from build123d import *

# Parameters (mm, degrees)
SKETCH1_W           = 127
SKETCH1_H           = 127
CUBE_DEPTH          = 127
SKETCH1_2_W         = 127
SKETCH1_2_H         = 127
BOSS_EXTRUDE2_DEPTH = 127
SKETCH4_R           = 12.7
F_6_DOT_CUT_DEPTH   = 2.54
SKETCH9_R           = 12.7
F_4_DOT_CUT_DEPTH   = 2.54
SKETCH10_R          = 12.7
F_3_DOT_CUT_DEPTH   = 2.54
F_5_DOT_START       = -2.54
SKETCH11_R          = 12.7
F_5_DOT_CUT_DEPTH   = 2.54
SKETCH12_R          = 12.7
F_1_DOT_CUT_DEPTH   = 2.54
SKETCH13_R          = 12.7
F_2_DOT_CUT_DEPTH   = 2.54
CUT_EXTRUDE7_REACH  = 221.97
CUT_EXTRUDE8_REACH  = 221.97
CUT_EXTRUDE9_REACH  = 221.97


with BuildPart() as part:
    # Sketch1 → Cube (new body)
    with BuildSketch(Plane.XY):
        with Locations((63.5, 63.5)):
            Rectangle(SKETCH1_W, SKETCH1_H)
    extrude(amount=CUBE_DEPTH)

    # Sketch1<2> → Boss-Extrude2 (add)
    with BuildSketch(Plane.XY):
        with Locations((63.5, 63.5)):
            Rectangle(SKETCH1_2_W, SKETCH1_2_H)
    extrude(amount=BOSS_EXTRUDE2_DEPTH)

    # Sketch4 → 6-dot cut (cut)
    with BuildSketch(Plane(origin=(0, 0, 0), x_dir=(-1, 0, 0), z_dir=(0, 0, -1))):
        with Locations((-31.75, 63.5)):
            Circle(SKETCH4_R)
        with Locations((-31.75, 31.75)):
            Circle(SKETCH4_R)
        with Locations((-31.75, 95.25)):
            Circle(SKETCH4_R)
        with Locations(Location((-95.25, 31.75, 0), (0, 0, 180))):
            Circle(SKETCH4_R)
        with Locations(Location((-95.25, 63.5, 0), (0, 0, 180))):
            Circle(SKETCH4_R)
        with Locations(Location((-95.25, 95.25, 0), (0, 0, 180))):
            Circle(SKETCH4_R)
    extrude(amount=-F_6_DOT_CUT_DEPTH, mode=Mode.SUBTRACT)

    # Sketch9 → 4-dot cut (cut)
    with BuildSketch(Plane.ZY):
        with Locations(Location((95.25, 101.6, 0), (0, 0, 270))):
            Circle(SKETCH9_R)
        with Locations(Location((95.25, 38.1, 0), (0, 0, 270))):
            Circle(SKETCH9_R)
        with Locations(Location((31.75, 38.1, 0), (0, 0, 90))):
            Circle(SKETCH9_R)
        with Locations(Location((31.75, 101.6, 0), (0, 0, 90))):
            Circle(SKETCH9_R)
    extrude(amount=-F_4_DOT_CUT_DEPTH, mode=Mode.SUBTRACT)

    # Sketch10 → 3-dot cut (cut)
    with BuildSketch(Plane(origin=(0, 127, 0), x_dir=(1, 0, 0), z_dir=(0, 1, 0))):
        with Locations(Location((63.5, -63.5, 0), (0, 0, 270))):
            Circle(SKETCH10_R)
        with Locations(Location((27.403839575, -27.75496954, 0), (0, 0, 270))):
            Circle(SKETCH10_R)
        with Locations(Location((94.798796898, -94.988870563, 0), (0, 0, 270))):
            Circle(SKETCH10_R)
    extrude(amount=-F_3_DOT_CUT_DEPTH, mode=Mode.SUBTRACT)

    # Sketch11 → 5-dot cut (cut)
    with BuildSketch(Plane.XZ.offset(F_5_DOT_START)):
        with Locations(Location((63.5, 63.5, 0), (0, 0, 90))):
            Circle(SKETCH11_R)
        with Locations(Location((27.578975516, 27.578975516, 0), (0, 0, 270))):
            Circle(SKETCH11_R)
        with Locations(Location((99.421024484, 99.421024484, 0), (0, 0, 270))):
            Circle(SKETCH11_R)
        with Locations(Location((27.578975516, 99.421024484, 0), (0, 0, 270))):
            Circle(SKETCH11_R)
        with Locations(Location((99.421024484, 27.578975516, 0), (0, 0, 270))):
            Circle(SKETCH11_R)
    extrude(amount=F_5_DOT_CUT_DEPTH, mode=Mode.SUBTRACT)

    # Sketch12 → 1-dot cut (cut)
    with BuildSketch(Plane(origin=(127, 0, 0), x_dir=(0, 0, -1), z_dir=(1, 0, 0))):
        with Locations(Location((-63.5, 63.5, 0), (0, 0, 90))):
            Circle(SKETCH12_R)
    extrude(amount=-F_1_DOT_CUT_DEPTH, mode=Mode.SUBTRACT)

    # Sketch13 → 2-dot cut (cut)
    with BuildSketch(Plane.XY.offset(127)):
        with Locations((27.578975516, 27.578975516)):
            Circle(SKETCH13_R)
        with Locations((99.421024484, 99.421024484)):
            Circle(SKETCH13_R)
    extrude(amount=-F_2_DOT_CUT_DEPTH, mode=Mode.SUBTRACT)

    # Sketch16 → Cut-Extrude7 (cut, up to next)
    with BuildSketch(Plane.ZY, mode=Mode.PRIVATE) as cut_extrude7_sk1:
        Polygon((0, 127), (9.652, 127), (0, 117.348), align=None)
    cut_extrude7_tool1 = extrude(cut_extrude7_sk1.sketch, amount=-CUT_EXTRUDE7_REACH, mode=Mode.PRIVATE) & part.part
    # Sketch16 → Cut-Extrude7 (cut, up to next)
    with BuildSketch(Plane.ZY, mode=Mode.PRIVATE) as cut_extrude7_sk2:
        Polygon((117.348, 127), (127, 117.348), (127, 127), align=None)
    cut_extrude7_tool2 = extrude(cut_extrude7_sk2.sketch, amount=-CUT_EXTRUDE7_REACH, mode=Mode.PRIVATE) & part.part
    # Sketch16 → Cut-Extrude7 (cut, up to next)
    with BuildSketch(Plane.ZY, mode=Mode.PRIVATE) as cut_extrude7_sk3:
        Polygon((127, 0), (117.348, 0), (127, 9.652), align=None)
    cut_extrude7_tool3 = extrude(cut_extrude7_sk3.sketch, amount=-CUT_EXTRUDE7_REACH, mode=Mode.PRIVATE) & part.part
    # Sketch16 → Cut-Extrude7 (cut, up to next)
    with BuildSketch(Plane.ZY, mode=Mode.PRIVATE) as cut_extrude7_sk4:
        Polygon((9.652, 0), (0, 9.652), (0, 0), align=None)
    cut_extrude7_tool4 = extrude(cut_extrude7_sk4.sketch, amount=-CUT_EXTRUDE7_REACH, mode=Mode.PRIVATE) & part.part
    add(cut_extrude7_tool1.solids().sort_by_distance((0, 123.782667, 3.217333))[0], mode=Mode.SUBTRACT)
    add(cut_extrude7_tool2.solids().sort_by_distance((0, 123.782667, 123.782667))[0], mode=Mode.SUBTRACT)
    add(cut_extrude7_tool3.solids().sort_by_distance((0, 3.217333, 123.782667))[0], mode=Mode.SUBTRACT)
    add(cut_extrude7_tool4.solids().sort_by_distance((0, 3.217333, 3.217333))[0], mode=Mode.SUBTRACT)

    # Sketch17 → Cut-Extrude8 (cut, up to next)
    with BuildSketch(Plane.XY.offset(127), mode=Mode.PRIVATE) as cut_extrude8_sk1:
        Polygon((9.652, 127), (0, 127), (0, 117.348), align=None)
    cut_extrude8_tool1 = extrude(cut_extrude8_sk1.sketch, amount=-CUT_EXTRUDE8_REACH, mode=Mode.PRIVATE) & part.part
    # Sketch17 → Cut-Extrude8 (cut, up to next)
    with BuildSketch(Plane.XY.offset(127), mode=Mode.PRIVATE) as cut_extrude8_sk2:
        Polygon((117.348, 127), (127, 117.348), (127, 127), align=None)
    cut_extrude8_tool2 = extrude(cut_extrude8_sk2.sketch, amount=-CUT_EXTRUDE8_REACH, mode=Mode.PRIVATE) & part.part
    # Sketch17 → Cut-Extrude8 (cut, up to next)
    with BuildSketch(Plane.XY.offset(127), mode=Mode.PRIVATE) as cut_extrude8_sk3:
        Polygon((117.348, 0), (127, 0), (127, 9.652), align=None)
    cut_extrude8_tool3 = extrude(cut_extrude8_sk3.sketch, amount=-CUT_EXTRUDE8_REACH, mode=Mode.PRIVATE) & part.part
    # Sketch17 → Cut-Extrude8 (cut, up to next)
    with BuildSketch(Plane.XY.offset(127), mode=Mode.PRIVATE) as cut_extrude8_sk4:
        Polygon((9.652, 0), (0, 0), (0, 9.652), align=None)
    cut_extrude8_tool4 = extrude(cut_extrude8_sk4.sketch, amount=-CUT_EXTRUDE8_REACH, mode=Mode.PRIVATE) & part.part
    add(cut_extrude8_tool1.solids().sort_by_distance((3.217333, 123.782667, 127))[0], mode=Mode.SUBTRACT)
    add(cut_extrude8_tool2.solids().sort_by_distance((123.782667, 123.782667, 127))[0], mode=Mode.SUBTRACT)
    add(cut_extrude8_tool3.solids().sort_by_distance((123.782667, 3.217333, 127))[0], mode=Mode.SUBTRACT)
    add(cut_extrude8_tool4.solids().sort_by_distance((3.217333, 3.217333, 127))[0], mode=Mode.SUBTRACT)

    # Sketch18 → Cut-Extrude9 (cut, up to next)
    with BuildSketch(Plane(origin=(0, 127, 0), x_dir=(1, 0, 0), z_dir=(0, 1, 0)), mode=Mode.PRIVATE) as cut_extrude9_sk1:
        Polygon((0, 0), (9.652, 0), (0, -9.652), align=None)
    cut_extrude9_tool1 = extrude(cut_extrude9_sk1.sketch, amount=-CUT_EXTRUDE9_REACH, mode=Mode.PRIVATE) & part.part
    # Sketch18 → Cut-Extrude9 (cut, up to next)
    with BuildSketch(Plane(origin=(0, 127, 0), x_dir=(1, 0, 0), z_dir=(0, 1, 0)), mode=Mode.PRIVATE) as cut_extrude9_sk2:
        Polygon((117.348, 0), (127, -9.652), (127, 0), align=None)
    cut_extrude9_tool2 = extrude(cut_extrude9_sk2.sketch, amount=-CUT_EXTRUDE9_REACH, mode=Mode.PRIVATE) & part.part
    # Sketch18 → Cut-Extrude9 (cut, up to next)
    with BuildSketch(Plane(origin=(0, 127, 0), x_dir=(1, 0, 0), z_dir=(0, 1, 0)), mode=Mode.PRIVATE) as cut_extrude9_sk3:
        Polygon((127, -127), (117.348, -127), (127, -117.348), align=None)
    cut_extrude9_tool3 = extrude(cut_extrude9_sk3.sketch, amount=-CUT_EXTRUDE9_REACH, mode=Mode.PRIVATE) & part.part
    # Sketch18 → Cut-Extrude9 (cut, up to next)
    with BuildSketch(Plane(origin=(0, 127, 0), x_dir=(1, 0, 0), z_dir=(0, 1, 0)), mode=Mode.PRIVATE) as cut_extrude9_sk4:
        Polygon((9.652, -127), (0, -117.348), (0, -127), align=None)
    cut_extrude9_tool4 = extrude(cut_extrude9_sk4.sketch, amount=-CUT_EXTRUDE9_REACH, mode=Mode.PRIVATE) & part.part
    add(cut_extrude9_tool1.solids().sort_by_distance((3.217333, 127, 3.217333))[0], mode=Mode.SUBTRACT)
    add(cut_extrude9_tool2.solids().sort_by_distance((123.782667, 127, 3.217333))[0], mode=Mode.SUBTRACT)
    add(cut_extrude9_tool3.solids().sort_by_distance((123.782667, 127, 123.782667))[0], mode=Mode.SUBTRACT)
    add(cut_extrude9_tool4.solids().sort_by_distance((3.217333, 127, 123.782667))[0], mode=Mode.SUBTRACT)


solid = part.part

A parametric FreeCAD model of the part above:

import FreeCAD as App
import Part
import Sketcher
Q = App.Units.Quantity

doc = App.newDocument("Part")
params = doc.addObject("Spreadsheet::Sheet", "Params")
for row, (alias, value) in enumerate([
    ("sketch1_width", "5 in"),
    ("pad1_length", "5 in"),
    ("sketch2_width", "5 in"),
    ("pad2_length", "5 in"),
    ("sketch3_diameter", "1 in"),
    ("pocket1_length", "0.1 in"),
    ("sketch4_diameter", "1 in"),
    ("pocket2_length", "0.1 in"),
    ("sketch5_diameter", "1 in"),
    ("pocket3_length", "0.1 in"),
    ("sketch6_diameter", "1 in"),
    ("pocket4_length", "0.1 in"),
    ("sketch7_diameter", "1 in"),
    ("pocket5_length", "0.1 in"),
    ("sketch8_diameter", "1 in"),
    ("pocket6_length", "0.1 in"),
    ("sketch9_width", "0.38 in"),
    ("sketch10_width", "0.38 in"),
    ("sketch11_width", "0.38 in"),
    ("sketch12_width", "0.38 in"),
    ("sketch13_width", "0.38 in"),
    ("pocket11_length", "5 in"),
    ("sketch14_width", "0.38 in"),
    ("pocket12_length", "5 in"),
    ("sketch15_width", "0.38 in"),
    ("pocket13_length", "5 in"),
    ("sketch16_width", "0.38 in"),
    ("pocket14_length", "5 in"),
    ("sketch17_width", "0.38 in"),
    ("pocket15_length", "4.81 in"),
    ("sketch18_width", "0.38 in"),
    ("pocket16_length", "4.81 in"),
    ("sketch19_width", "0.38 in"),
    ("pocket17_length", "4.81 in"),
    ("sketch20_width", "0.38 in"),
    ("pocket18_length", "4.81 in"),
], start=1):
    params.set(f"A{row}", alias)
    params.set(f"B{row}", "=" + value)
    params.setAlias(f"B{row}", alias)

body = doc.addObject("PartDesign::Body", "Body")

sketch1 = body.newObject("Sketcher::SketchObject", "Sketch")
sketch1.AttachmentSupport = (doc.getObject("XY_Plane"), [""])
sketch1.MapMode = "FlatFace"
sketch1.addGeometry([
    Part.LineSegment(App.Vector(0, 127, 0), App.Vector(0, 0, 0)),
    Part.LineSegment(App.Vector(0, 0, 0), App.Vector(127, 0, 0)),
    Part.LineSegment(App.Vector(127, 0, 0), App.Vector(127, 127, 0)),
    Part.LineSegment(App.Vector(127, 127, 0), App.Vector(0, 127, 0)),
], False)
sketch1.addConstraint([
    Sketcher.Constraint("Coincident", 0, 2, 1, 1),
    Sketcher.Constraint("Coincident", 1, 2, 2, 1),
    Sketcher.Constraint("Coincident", 2, 2, 3, 1),
    Sketcher.Constraint("Coincident", 3, 2, 0, 1),
    Sketcher.Constraint("Vertical", 0),
    Sketcher.Constraint("Horizontal", 1),
    Sketcher.Constraint("Vertical", 2),
    Sketcher.Constraint("Horizontal", 3),
    Sketcher.Constraint("Coincident", 0, 2, -1, 1),
    Sketcher.Constraint("Equal", 3, 0),
    Sketcher.Constraint("DistanceX", 1, 1, 1, 2, Q("5 in")),
])
sketch1.setExpression("Constraints[10]", "Params.sketch1_width")
pad1 = body.newObject("PartDesign::Pad", "Pad")
pad1.Profile = sketch1
pad1.setExpression("Length", "Params.pad1_length")

sketch2 = body.newObject("Sketcher::SketchObject", "Sketch001")
sketch2.AttachmentSupport = (doc.getObject("XY_Plane"), [""])
sketch2.MapMode = "FlatFace"
sketch2.addGeometry([
    Part.LineSegment(App.Vector(0, 127, 0), App.Vector(0, 0, 0)),
    Part.LineSegment(App.Vector(0, 0, 0), App.Vector(127, 0, 0)),
    Part.LineSegment(App.Vector(127, 0, 0), App.Vector(127, 127, 0)),
    Part.LineSegment(App.Vector(127, 127, 0), App.Vector(0, 127, 0)),
], False)
sketch2.addConstraint([
    Sketcher.Constraint("Coincident", 0, 2, 1, 1),
    Sketcher.Constraint("Coincident", 1, 2, 2, 1),
    Sketcher.Constraint("Coincident", 2, 2, 3, 1),
    Sketcher.Constraint("Coincident", 3, 2, 0, 1),
    Sketcher.Constraint("Vertical", 0),
    Sketcher.Constraint("Horizontal", 1),
    Sketcher.Constraint("Vertical", 2),
    Sketcher.Constraint("Horizontal", 3),
    Sketcher.Constraint("Coincident", 0, 2, -1, 1),
    Sketcher.Constraint("Equal", 3, 0),
    Sketcher.Constraint("DistanceX", 1, 1, 1, 2, Q("5 in")),
])
sketch2.setExpression("Constraints[10]", "Params.sketch2_width")
pad2 = body.newObject("PartDesign::Pad", "Pad001")
pad2.Profile = sketch2
pad2.setExpression("Length", "Params.pad2_length")

sketch3 = body.newObject("Sketcher::SketchObject", "Sketch002")
sketch3.AttachmentSupport = (doc.getObject("XY_Plane"), [""])
sketch3.MapMode = "FlatFace"
sketch3.addGeometry([
    Part.Circle(App.Vector(31.75, 63.5, 0), App.Vector(0, 0, 1), 12.7),
    Part.Circle(App.Vector(31.75, 31.75, 0), App.Vector(0, 0, 1), 12.7),
    Part.Circle(App.Vector(31.75, 95.25, 0), App.Vector(0, 0, 1), 12.7),
    Part.Circle(App.Vector(95.25, 31.75, 0), App.Vector(0, 0, 1), 12.7),
    Part.Circle(App.Vector(95.25, 63.5, 0), App.Vector(0, 0, 1), 12.7),
    Part.Circle(App.Vector(95.25, 95.25, 0), App.Vector(0, 0, 1), 12.7),
], False)
sketch3.addConstraint([
    Sketcher.Constraint("Equal", 0, 1),
    Sketcher.Constraint("Equal", 1, 2),
    Sketcher.Constraint("Equal", 2, 3),
    Sketcher.Constraint("Equal", 3, 4),
    Sketcher.Constraint("Equal", 4, 5),
    Sketcher.Constraint("Horizontal", 1, 3, 3, 3),
    Sketcher.Constraint("Horizontal", 0, 3, 4, 3),
    Sketcher.Constraint("Horizontal", 2, 3, 5, 3),
    Sketcher.Constraint("Vertical", 0, 3, 1, 3),
    Sketcher.Constraint("Vertical", 1, 3, 2, 3),
    Sketcher.Constraint("Vertical", 3, 3, 4, 3),
    Sketcher.Constraint("Vertical", 4, 3, 5, 3),
    Sketcher.Constraint("Diameter", 0, Q("1 in")),
    Sketcher.Constraint("DistanceY", -1, 1, 0, 3, Q("2.5 in")),
    Sketcher.Constraint("DistanceY", 1, 3, 2, 3, Q("2.5 in")),
    Sketcher.Constraint("DistanceX", 1, 3, 3, 3, Q("2.5 in")),
    Sketcher.Constraint("DistanceX", -1, 1, 0, 3, Q("1.25 in")),
    Sketcher.Constraint("DistanceY", -1, 1, 1, 3, Q("1.25 in")),
])
sketch3.setExpression("Constraints[12]", "Params.sketch3_diameter")
pocket1 = body.newObject("PartDesign::Pocket", "Pocket")
pocket1.Profile = sketch3
pocket1.setExpression("Length", "Params.pocket1_length")
pocket1.Reversed = True

sketch4 = body.newObject("Sketcher::SketchObject", "Sketch003")
sketch4.AttachmentSupport = (doc.getObject("YZ_Plane"), [""])
sketch4.MapMode = "FlatFace"
sketch4.addGeometry([
    Part.Circle(App.Vector(101.6, 95.25, 0), App.Vector(0, 0, 1), 12.7),
    Part.Circle(App.Vector(38.1, 95.25, 0), App.Vector(0, 0, 1), 12.7),
    Part.Circle(App.Vector(38.1, 31.75, 0), App.Vector(0, 0, 1), 12.7),
    Part.Circle(App.Vector(101.6, 31.75, 0), App.Vector(0, 0, 1), 12.7),
], False)
sketch4.addConstraint([
    Sketcher.Constraint("Equal", 0, 1),
    Sketcher.Constraint("Equal", 1, 2),
    Sketcher.Constraint("Equal", 2, 3),
    Sketcher.Constraint("Horizontal", 0, 3, 1, 3),
    Sketcher.Constraint("Horizontal", 2, 3, 3, 3),
    Sketcher.Constraint("Vertical", 1, 3, 2, 3),
    Sketcher.Constraint("Vertical", 0, 3, 3, 3),
    Sketcher.Constraint("Diameter", 0, Q("1 in")),
    Sketcher.Constraint("DistanceX", -1, 1, 0, 3, Q("4 in")),
    Sketcher.Constraint("DistanceX", -1, 1, 1, 3, Q("1.5 in")),
    Sketcher.Constraint("DistanceY", 2, 3, 1, 3, Q("2.5 in")),
    Sketcher.Constraint("DistanceY", -1, 1, 0, 3, Q("3.75 in")),
])
sketch4.setExpression("Constraints[7]", "Params.sketch4_diameter")
pocket2 = body.newObject("PartDesign::Pocket", "Pocket001")
pocket2.Profile = sketch4
pocket2.setExpression("Length", "Params.pocket2_length")
pocket2.Reversed = True

sketch5 = body.newObject("Sketcher::SketchObject", "Sketch004")
sketch5.AttachmentSupport = (doc.getObject("XZ_Plane"), [""])
sketch5.MapMode = "FlatFace"
sketch5.AttachmentOffset = App.Placement(App.Vector(0, 0, -5 * 25.4), App.Rotation())
sketch5.addGeometry([
    Part.Circle(App.Vector(63.5, 63.5, 0), App.Vector(0, 0, 1), 12.7),
    Part.Circle(App.Vector(27.40384, 27.75497, 0), App.Vector(0, 0, 1), 12.7),
    Part.Circle(App.Vector(94.798797, 94.988871, 0), App.Vector(0, 0, 1), 12.7),
], False)
sketch5.addConstraint([
    Sketcher.Constraint("Equal", 0, 1),
    Sketcher.Constraint("Equal", 1, 2),
    Sketcher.Constraint("Diameter", 0, Q("1 in")),
    Sketcher.Constraint("DistanceX", -1, 1, 0, 3, Q("2.5 in")),
    Sketcher.Constraint("DistanceY", -1, 1, 0, 3, Q("2.5 in")),
    Sketcher.Constraint("DistanceY", 1, 3, 2, 3, Q("67.233901 mm")),
    Sketcher.Constraint("DistanceX", -1, 1, 1, 3, Q("27.40384 mm")),
    Sketcher.Constraint("DistanceY", -1, 1, 1, 3, Q("27.75497 mm")),
    Sketcher.Constraint("DistanceX", -1, 1, 2, 3, Q("94.798797 mm")),
])
sketch5.setExpression("Constraints[2]", "Params.sketch5_diameter")
pocket3 = body.newObject("PartDesign::Pocket", "Pocket002")
pocket3.Profile = sketch5
pocket3.setExpression("Length", "Params.pocket3_length")
pocket3.Reversed = True

sketch6 = body.newObject("Sketcher::SketchObject", "Sketch005")
sketch6.AttachmentSupport = (doc.getObject("XZ_Plane"), [""])
sketch6.MapMode = "FlatFace"
sketch6.AttachmentOffset = App.Placement(App.Vector(0, 0, -0.1 * 25.4), App.Rotation())
sketch6.addGeometry([
    Part.Circle(App.Vector(63.5, 63.5, 0), App.Vector(0, 0, 1), 12.7),
    Part.Circle(App.Vector(27.578976, 27.578976, 0), App.Vector(0, 0, 1), 12.7),
    Part.Circle(App.Vector(99.421024, 99.421024, 0), App.Vector(0, 0, 1), 12.7),
    Part.Circle(App.Vector(27.578976, 99.421024, 0), App.Vector(0, 0, 1), 12.7),
    Part.Circle(App.Vector(99.421024, 27.578976, 0), App.Vector(0, 0, 1), 12.7),
], False)
sketch6.addConstraint([
    Sketcher.Constraint("Equal", 0, 1),
    Sketcher.Constraint("Equal", 1, 2),
    Sketcher.Constraint("Equal", 2, 3),
    Sketcher.Constraint("Equal", 3, 4),
    Sketcher.Constraint("Horizontal", 2, 3, 3, 3),
    Sketcher.Constraint("Horizontal", 1, 3, 4, 3),
    Sketcher.Constraint("Vertical", 1, 3, 3, 3),
    Sketcher.Constraint("Vertical", 2, 3, 4, 3),
    Sketcher.Constraint("Diameter", 0, Q("1 in")),
    Sketcher.Constraint("DistanceX", -1, 1, 0, 3, Q("2.5 in")),
    Sketcher.Constraint("DistanceY", -1, 1, 0, 3, Q("2.5 in")),
    Sketcher.Constraint("DistanceX", 1, 3, 2, 3, Q("71.842049 mm")),
    Sketcher.Constraint("DistanceY", 1, 3, 2, 3, Q("71.842049 mm")),
    Sketcher.Constraint("DistanceX", -1, 1, 1, 3, Q("27.578976 mm")),
    Sketcher.Constraint("DistanceY", -1, 1, 1, 3, Q("27.578976 mm")),
])
sketch6.setExpression("Constraints[8]", "Params.sketch6_diameter")
pocket4 = body.newObject("PartDesign::Pocket", "Pocket003")
pocket4.Profile = sketch6
pocket4.setExpression("Length", "Params.pocket4_length")
pocket4.Reversed = True

sketch7 = body.newObject("Sketcher::SketchObject", "Sketch006")
sketch7.AttachmentSupport = (doc.getObject("YZ_Plane"), [""])
sketch7.MapMode = "FlatFace"
sketch7.AttachmentOffset = App.Placement(App.Vector(0, 0, 5 * 25.4), App.Rotation())
sketch7.addGeometry(Part.Circle(App.Vector(63.5, 63.5, 0), App.Vector(0, 0, 1), 12.7), False)
sketch7.addConstraint([
    Sketcher.Constraint("Diameter", 0, Q("1 in")),
    Sketcher.Constraint("DistanceX", -1, 1, 0, 3, Q("2.5 in")),
    Sketcher.Constraint("DistanceY", -1, 1, 0, 3, Q("2.5 in")),
])
sketch7.setExpression("Constraints[0]", "Params.sketch7_diameter")
pocket5 = body.newObject("PartDesign::Pocket", "Pocket004")
pocket5.Profile = sketch7
pocket5.setExpression("Length", "Params.pocket5_length")

sketch8 = body.newObject("Sketcher::SketchObject", "Sketch007")
sketch8.AttachmentSupport = (doc.getObject("XY_Plane"), [""])
sketch8.MapMode = "FlatFace"
sketch8.AttachmentOffset = App.Placement(App.Vector(0, 0, 5 * 25.4), App.Rotation())
sketch8.addGeometry([
    Part.Circle(App.Vector(27.578976, 27.578976, 0), App.Vector(0, 0, 1), 12.7),
    Part.Circle(App.Vector(99.421024, 99.421024, 0), App.Vector(0, 0, 1), 12.7),
], False)
sketch8.addConstraint([
    Sketcher.Constraint("Equal", 0, 1),
    Sketcher.Constraint("Diameter", 0, Q("1 in")),
    Sketcher.Constraint("DistanceX", 0, 3, 1, 3, Q("71.842049 mm")),
    Sketcher.Constraint("DistanceY", 0, 3, 1, 3, Q("71.842049 mm")),
    Sketcher.Constraint("DistanceX", -1, 1, 0, 3, Q("27.578976 mm")),
    Sketcher.Constraint("DistanceY", -1, 1, 0, 3, Q("27.578976 mm")),
])
sketch8.setExpression("Constraints[1]", "Params.sketch8_diameter")
pocket6 = body.newObject("PartDesign::Pocket", "Pocket005")
pocket6.Profile = sketch8
pocket6.setExpression("Length", "Params.pocket6_length")

sketch9 = body.newObject("Sketcher::SketchObject", "Sketch008")
sketch9.AttachmentSupport = (doc.getObject("YZ_Plane"), [""])
sketch9.MapMode = "FlatFace"
sketch9.addGeometry([
    Part.LineSegment(App.Vector(127, 9.652, 0), App.Vector(127, 0, 0)),
    Part.LineSegment(App.Vector(127, 0, 0), App.Vector(117.348, 0, 0)),
    Part.LineSegment(App.Vector(117.348, 0, 0), App.Vector(127, 9.652, 0)),
], False)
sketch9.addConstraint([
    Sketcher.Constraint("Coincident", 0, 2, 1, 1),
    Sketcher.Constraint("Coincident", 1, 2, 2, 1),
    Sketcher.Constraint("Coincident", 2, 2, 0, 1),
    Sketcher.Constraint("Vertical", 0),
    Sketcher.Constraint("Horizontal", 1),
    Sketcher.Constraint("PointOnObject", 0, 2, -1),
    Sketcher.Constraint("Equal", 1, 0),
    Sketcher.Constraint("DistanceX", -1, 1, 0, 2, Q("5 in")),
    Sketcher.Constraint("DistanceX", 1, 2, 1, 1, Q("0.38 in")),
])
sketch9.setExpression("Constraints[8]", "Params.sketch9_width")
pocket7 = body.newObject("PartDesign::Pocket", "Pocket006")
pocket7.Profile = sketch9
pocket7.Type = "UpToFirst"
pocket7.Reversed = True

sketch10 = body.newObject("Sketcher::SketchObject", "Sketch009")
sketch10.AttachmentSupport = (doc.getObject("YZ_Plane"), [""])
sketch10.MapMode = "FlatFace"
sketch10.addGeometry([
    Part.LineSegment(App.Vector(127, 117.348, 0), App.Vector(117.348, 127, 0)),
    Part.LineSegment(App.Vector(117.348, 127, 0), App.Vector(127, 127, 0)),
    Part.LineSegment(App.Vector(127, 127, 0), App.Vector(127, 117.348, 0)),
], False)
sketch10.addConstraint([
    Sketcher.Constraint("Coincident", 0, 2, 1, 1),
    Sketcher.Constraint("Coincident", 1, 2, 2, 1),
    Sketcher.Constraint("Coincident", 2, 2, 0, 1),
    Sketcher.Constraint("Horizontal", 1),
    Sketcher.Constraint("Vertical", 2),
    Sketcher.Constraint("Equal", 1, 2),
    Sketcher.Constraint("DistanceY", -1, 1, 0, 2, Q("5 in")),
    Sketcher.Constraint("DistanceX", -1, 1, 1, 2, Q("5 in")),
    Sketcher.Constraint("DistanceX", 1, 1, 1, 2, Q("0.38 in")),
])
sketch10.setExpression("Constraints[8]", "Params.sketch10_width")
pocket8 = body.newObject("PartDesign::Pocket", "Pocket007")
pocket8.Profile = sketch10
pocket8.Type = "UpToFirst"
pocket8.Reversed = True

sketch11 = body.newObject("Sketcher::SketchObject", "Sketch010")
sketch11.AttachmentSupport = (doc.getObject("YZ_Plane"), [""])
sketch11.MapMode = "FlatFace"
sketch11.addGeometry([
    Part.LineSegment(App.Vector(0, 117.348, 0), App.Vector(0, 127, 0)),
    Part.LineSegment(App.Vector(0, 127, 0), App.Vector(9.652, 127, 0)),
    Part.LineSegment(App.Vector(9.652, 127, 0), App.Vector(0, 117.348, 0)),
], False)
sketch11.addConstraint([
    Sketcher.Constraint("Coincident", 0, 2, 1, 1),
    Sketcher.Constraint("Coincident", 1, 2, 2, 1),
    Sketcher.Constraint("Coincident", 2, 2, 0, 1),
    Sketcher.Constraint("Vertical", 0),
    Sketcher.Constraint("Horizontal", 1),
    Sketcher.Constraint("PointOnObject", 0, 2, -2),
    Sketcher.Constraint("Equal", 1, 0),
    Sketcher.Constraint("DistanceY", -1, 1, 0, 2, Q("5 in")),
    Sketcher.Constraint("DistanceX", 1, 1, 1, 2, Q("0.38 in")),
])
sketch11.setExpression("Constraints[8]", "Params.sketch11_width")
pocket9 = body.newObject("PartDesign::Pocket", "Pocket008")
pocket9.Profile = sketch11
pocket9.Type = "UpToFirst"
pocket9.Reversed = True

sketch12 = body.newObject("Sketcher::SketchObject", "Sketch011")
sketch12.AttachmentSupport = (doc.getObject("YZ_Plane"), [""])
sketch12.MapMode = "FlatFace"
sketch12.addGeometry([
    Part.LineSegment(App.Vector(0, 9.652, 0), App.Vector(9.652, 0, 0)),
    Part.LineSegment(App.Vector(9.652, 0, 0), App.Vector(0, 0, 0)),
    Part.LineSegment(App.Vector(0, 0, 0), App.Vector(0, 9.652, 0)),
], False)
sketch12.addConstraint([
    Sketcher.Constraint("Coincident", 0, 2, 1, 1),
    Sketcher.Constraint("Coincident", 1, 2, 2, 1),
    Sketcher.Constraint("Coincident", 2, 2, 0, 1),
    Sketcher.Constraint("Horizontal", 1),
    Sketcher.Constraint("Vertical", 2),
    Sketcher.Constraint("Coincident", 1, 2, -1, 1),
    Sketcher.Constraint("Equal", 1, 2),
    Sketcher.Constraint("DistanceX", 1, 2, 1, 1, Q("0.38 in")),
])
sketch12.setExpression("Constraints[7]", "Params.sketch12_width")
pocket10 = body.newObject("PartDesign::Pocket", "Pocket009")
pocket10.Profile = sketch12
pocket10.Type = "UpToFirst"
pocket10.Reversed = True

sketch13 = body.newObject("Sketcher::SketchObject", "Sketch012")
sketch13.AttachmentSupport = (doc.getObject("XY_Plane"), [""])
sketch13.MapMode = "FlatFace"
sketch13.AttachmentOffset = App.Placement(App.Vector(0, 0, 5 * 25.4), App.Rotation())
sketch13.addGeometry([
    Part.LineSegment(App.Vector(9.652, 127, 0), App.Vector(0, 127, 0)),
    Part.LineSegment(App.Vector(0, 127, 0), App.Vector(0, 117.348, 0)),
    Part.LineSegment(App.Vector(0, 117.348, 0), App.Vector(9.652, 127, 0)),
], False)
sketch13.addConstraint([
    Sketcher.Constraint("Coincident", 0, 2, 1, 1),
    Sketcher.Constraint("Coincident", 1, 2, 2, 1),
    Sketcher.Constraint("Coincident", 2, 2, 0, 1),
    Sketcher.Constraint("Horizontal", 0),
    Sketcher.Constraint("Vertical", 1),
    Sketcher.Constraint("PointOnObject", 0, 2, -2),
    Sketcher.Constraint("Equal", 0, 1),
    Sketcher.Constraint("DistanceY", -1, 1, 0, 2, Q("5 in")),
    Sketcher.Constraint("DistanceX", 0, 2, 0, 1, Q("0.38 in")),
])
sketch13.setExpression("Constraints[8]", "Params.sketch13_width")
pocket11 = body.newObject("PartDesign::Pocket", "Pocket010")
pocket11.Profile = sketch13
pocket11.setExpression("Length", "Params.pocket11_length")

sketch14 = body.newObject("Sketcher::SketchObject", "Sketch013")
sketch14.AttachmentSupport = (doc.getObject("XY_Plane"), [""])
sketch14.MapMode = "FlatFace"
sketch14.AttachmentOffset = App.Placement(App.Vector(0, 0, 5 * 25.4), App.Rotation())
sketch14.addGeometry([
    Part.LineSegment(App.Vector(117.348, 127, 0), App.Vector(127, 117.348, 0)),
    Part.LineSegment(App.Vector(127, 117.348, 0), App.Vector(127, 127, 0)),
    Part.LineSegment(App.Vector(127, 127, 0), App.Vector(117.348, 127, 0)),
], False)
sketch14.addConstraint([
    Sketcher.Constraint("Coincident", 0, 2, 1, 1),
    Sketcher.Constraint("Coincident", 1, 2, 2, 1),
    Sketcher.Constraint("Coincident", 2, 2, 0, 1),
    Sketcher.Constraint("Vertical", 1),
    Sketcher.Constraint("Horizontal", 2),
    Sketcher.Constraint("Equal", 2, 1),
    Sketcher.Constraint("DistanceX", -1, 1, 0, 2, Q("5 in")),
    Sketcher.Constraint("DistanceY", -1, 1, 1, 2, Q("5 in")),
    Sketcher.Constraint("DistanceX", 2, 2, 2, 1, Q("0.38 in")),
])
sketch14.setExpression("Constraints[8]", "Params.sketch14_width")
pocket12 = body.newObject("PartDesign::Pocket", "Pocket011")
pocket12.Profile = sketch14
pocket12.setExpression("Length", "Params.pocket12_length")

sketch15 = body.newObject("Sketcher::SketchObject", "Sketch014")
sketch15.AttachmentSupport = (doc.getObject("XY_Plane"), [""])
sketch15.MapMode = "FlatFace"
sketch15.AttachmentOffset = App.Placement(App.Vector(0, 0, 5 * 25.4), App.Rotation())
sketch15.addGeometry([
    Part.LineSegment(App.Vector(117.348, 0, 0), App.Vector(127, 0, 0)),
    Part.LineSegment(App.Vector(127, 0, 0), App.Vector(127, 9.652, 0)),
    Part.LineSegment(App.Vector(127, 9.652, 0), App.Vector(117.348, 0, 0)),
], False)
sketch15.addConstraint([
    Sketcher.Constraint("Coincident", 0, 2, 1, 1),
    Sketcher.Constraint("Coincident", 1, 2, 2, 1),
    Sketcher.Constraint("Coincident", 2, 2, 0, 1),
    Sketcher.Constraint("Horizontal", 0),
    Sketcher.Constraint("Vertical", 1),
    Sketcher.Constraint("PointOnObject", 0, 2, -1),
    Sketcher.Constraint("Equal", 0, 1),
    Sketcher.Constraint("DistanceX", -1, 1, 0, 2, Q("5 in")),
    Sketcher.Constraint("DistanceX", 0, 1, 0, 2, Q("0.38 in")),
])
sketch15.setExpression("Constraints[8]", "Params.sketch15_width")
pocket13 = body.newObject("PartDesign::Pocket", "Pocket012")
pocket13.Profile = sketch15
pocket13.setExpression("Length", "Params.pocket13_length")

sketch16 = body.newObject("Sketcher::SketchObject", "Sketch015")
sketch16.AttachmentSupport = (doc.getObject("XY_Plane"), [""])
sketch16.MapMode = "FlatFace"
sketch16.AttachmentOffset = App.Placement(App.Vector(0, 0, 5 * 25.4), App.Rotation())
sketch16.addGeometry([
    Part.LineSegment(App.Vector(0, 0, 0), App.Vector(9.652, 0, 0)),
    Part.LineSegment(App.Vector(9.652, 0, 0), App.Vector(0, 9.652, 0)),
    Part.LineSegment(App.Vector(0, 9.652, 0), App.Vector(0, 0, 0)),
], False)
sketch16.addConstraint([
    Sketcher.Constraint("Coincident", 0, 2, 1, 1),
    Sketcher.Constraint("Coincident", 1, 2, 2, 1),
    Sketcher.Constraint("Coincident", 2, 2, 0, 1),
    Sketcher.Constraint("Horizontal", 0),
    Sketcher.Constraint("Vertical", 2),
    Sketcher.Constraint("Coincident", 2, 2, -1, 1),
    Sketcher.Constraint("Equal", 0, 2),
    Sketcher.Constraint("DistanceX", 0, 1, 0, 2, Q("0.38 in")),
])
sketch16.setExpression("Constraints[7]", "Params.sketch16_width")
pocket14 = body.newObject("PartDesign::Pocket", "Pocket013")
pocket14.Profile = sketch16
pocket14.setExpression("Length", "Params.pocket14_length")

sketch17 = body.newObject("Sketcher::SketchObject", "Sketch016")
sketch17.AttachmentSupport = (doc.getObject("XZ_Plane"), [""])
sketch17.MapMode = "FlatFace"
sketch17.AttachmentOffset = App.Placement(App.Vector(0, 0, -5 * 25.4), App.Rotation())
sketch17.addGeometry([
    Part.LineSegment(App.Vector(9.652, 0, 0), App.Vector(0, 0, 0)),
    Part.LineSegment(App.Vector(0, 0, 0), App.Vector(0, 9.652, 0)),
    Part.LineSegment(App.Vector(0, 9.652, 0), App.Vector(9.652, 0, 0)),
], False)
sketch17.addConstraint([
    Sketcher.Constraint("Coincident", 0, 2, 1, 1),
    Sketcher.Constraint("Coincident", 1, 2, 2, 1),
    Sketcher.Constraint("Coincident", 2, 2, 0, 1),
    Sketcher.Constraint("Horizontal", 0),
    Sketcher.Constraint("Vertical", 1),
    Sketcher.Constraint("Coincident", 0, 2, -1, 1),
    Sketcher.Constraint("Equal", 0, 1),
    Sketcher.Constraint("DistanceX", 0, 2, 0, 1, Q("0.38 in")),
])
sketch17.setExpression("Constraints[7]", "Params.sketch17_width")
pocket15 = body.newObject("PartDesign::Pocket", "Pocket014")
pocket15.Profile = sketch17
pocket15.setExpression("Length", "Params.pocket15_length")
pocket15.Reversed = True

sketch18 = body.newObject("Sketcher::SketchObject", "Sketch017")
sketch18.AttachmentSupport = (doc.getObject("XZ_Plane"), [""])
sketch18.MapMode = "FlatFace"
sketch18.AttachmentOffset = App.Placement(App.Vector(0, 0, -5 * 25.4), App.Rotation())
sketch18.addGeometry([
    Part.LineSegment(App.Vector(117.348, 0, 0), App.Vector(127, 9.652, 0)),
    Part.LineSegment(App.Vector(127, 9.652, 0), App.Vector(127, 0, 0)),
    Part.LineSegment(App.Vector(127, 0, 0), App.Vector(117.348, 0, 0)),
], False)
sketch18.addConstraint([
    Sketcher.Constraint("Coincident", 0, 2, 1, 1),
    Sketcher.Constraint("Coincident", 1, 2, 2, 1),
    Sketcher.Constraint("Coincident", 2, 2, 0, 1),
    Sketcher.Constraint("Vertical", 1),
    Sketcher.Constraint("Horizontal", 2),
    Sketcher.Constraint("PointOnObject", 1, 2, -1),
    Sketcher.Constraint("Equal", 2, 1),
    Sketcher.Constraint("DistanceX", -1, 1, 0, 2, Q("5 in")),
    Sketcher.Constraint("DistanceX", 2, 2, 2, 1, Q("0.38 in")),
])
sketch18.setExpression("Constraints[8]", "Params.sketch18_width")
pocket16 = body.newObject("PartDesign::Pocket", "Pocket015")
pocket16.Profile = sketch18
pocket16.setExpression("Length", "Params.pocket16_length")
pocket16.Reversed = True

sketch19 = body.newObject("Sketcher::SketchObject", "Sketch018")
sketch19.AttachmentSupport = (doc.getObject("XZ_Plane"), [""])
sketch19.MapMode = "FlatFace"
sketch19.AttachmentOffset = App.Placement(App.Vector(0, 0, -5 * 25.4), App.Rotation())
sketch19.addGeometry([
    Part.LineSegment(App.Vector(117.348, 127, 0), App.Vector(127, 127, 0)),
    Part.LineSegment(App.Vector(127, 127, 0), App.Vector(127, 117.348, 0)),
    Part.LineSegment(App.Vector(127, 117.348, 0), App.Vector(117.348, 127, 0)),
], False)
sketch19.addConstraint([
    Sketcher.Constraint("Coincident", 0, 2, 1, 1),
    Sketcher.Constraint("Coincident", 1, 2, 2, 1),
    Sketcher.Constraint("Coincident", 2, 2, 0, 1),
    Sketcher.Constraint("Horizontal", 0),
    Sketcher.Constraint("Vertical", 1),
    Sketcher.Constraint("Equal", 0, 1),
    Sketcher.Constraint("DistanceX", -1, 1, 0, 2, Q("5 in")),
    Sketcher.Constraint("DistanceY", -1, 1, 0, 2, Q("5 in")),
    Sketcher.Constraint("DistanceX", 0, 1, 0, 2, Q("0.38 in")),
])
sketch19.setExpression("Constraints[8]", "Params.sketch19_width")
pocket17 = body.newObject("PartDesign::Pocket", "Pocket016")
pocket17.Profile = sketch19
pocket17.setExpression("Length", "Params.pocket17_length")
pocket17.Reversed = True

sketch20 = body.newObject("Sketcher::SketchObject", "Sketch019")
sketch20.AttachmentSupport = (doc.getObject("XZ_Plane"), [""])
sketch20.MapMode = "FlatFace"
sketch20.AttachmentOffset = App.Placement(App.Vector(0, 0, -5 * 25.4), App.Rotation())
sketch20.addGeometry([
    Part.LineSegment(App.Vector(9.652, 127, 0), App.Vector(0, 117.348, 0)),
    Part.LineSegment(App.Vector(0, 117.348, 0), App.Vector(0, 127, 0)),
    Part.LineSegment(App.Vector(0, 127, 0), App.Vector(9.652, 127, 0)),
], False)
sketch20.addConstraint([
    Sketcher.Constraint("Coincident", 0, 2, 1, 1),
    Sketcher.Constraint("Coincident", 1, 2, 2, 1),
    Sketcher.Constraint("Coincident", 2, 2, 0, 1),
    Sketcher.Constraint("Vertical", 1),
    Sketcher.Constraint("Horizontal", 2),
    Sketcher.Constraint("PointOnObject", 0, 2, -2),
    Sketcher.Constraint("Equal", 2, 1),
    Sketcher.Constraint("DistanceY", -1, 1, 1, 2, Q("5 in")),
    Sketcher.Constraint("DistanceX", 2, 1, 2, 2, Q("0.38 in")),
])
sketch20.setExpression("Constraints[8]", "Params.sketch20_width")
pocket18 = body.newObject("PartDesign::Pocket", "Pocket017")
pocket18.Profile = sketch20
pocket18.setExpression("Length", "Params.pocket18_length")
pocket18.Reversed = True

doc.recompute()
